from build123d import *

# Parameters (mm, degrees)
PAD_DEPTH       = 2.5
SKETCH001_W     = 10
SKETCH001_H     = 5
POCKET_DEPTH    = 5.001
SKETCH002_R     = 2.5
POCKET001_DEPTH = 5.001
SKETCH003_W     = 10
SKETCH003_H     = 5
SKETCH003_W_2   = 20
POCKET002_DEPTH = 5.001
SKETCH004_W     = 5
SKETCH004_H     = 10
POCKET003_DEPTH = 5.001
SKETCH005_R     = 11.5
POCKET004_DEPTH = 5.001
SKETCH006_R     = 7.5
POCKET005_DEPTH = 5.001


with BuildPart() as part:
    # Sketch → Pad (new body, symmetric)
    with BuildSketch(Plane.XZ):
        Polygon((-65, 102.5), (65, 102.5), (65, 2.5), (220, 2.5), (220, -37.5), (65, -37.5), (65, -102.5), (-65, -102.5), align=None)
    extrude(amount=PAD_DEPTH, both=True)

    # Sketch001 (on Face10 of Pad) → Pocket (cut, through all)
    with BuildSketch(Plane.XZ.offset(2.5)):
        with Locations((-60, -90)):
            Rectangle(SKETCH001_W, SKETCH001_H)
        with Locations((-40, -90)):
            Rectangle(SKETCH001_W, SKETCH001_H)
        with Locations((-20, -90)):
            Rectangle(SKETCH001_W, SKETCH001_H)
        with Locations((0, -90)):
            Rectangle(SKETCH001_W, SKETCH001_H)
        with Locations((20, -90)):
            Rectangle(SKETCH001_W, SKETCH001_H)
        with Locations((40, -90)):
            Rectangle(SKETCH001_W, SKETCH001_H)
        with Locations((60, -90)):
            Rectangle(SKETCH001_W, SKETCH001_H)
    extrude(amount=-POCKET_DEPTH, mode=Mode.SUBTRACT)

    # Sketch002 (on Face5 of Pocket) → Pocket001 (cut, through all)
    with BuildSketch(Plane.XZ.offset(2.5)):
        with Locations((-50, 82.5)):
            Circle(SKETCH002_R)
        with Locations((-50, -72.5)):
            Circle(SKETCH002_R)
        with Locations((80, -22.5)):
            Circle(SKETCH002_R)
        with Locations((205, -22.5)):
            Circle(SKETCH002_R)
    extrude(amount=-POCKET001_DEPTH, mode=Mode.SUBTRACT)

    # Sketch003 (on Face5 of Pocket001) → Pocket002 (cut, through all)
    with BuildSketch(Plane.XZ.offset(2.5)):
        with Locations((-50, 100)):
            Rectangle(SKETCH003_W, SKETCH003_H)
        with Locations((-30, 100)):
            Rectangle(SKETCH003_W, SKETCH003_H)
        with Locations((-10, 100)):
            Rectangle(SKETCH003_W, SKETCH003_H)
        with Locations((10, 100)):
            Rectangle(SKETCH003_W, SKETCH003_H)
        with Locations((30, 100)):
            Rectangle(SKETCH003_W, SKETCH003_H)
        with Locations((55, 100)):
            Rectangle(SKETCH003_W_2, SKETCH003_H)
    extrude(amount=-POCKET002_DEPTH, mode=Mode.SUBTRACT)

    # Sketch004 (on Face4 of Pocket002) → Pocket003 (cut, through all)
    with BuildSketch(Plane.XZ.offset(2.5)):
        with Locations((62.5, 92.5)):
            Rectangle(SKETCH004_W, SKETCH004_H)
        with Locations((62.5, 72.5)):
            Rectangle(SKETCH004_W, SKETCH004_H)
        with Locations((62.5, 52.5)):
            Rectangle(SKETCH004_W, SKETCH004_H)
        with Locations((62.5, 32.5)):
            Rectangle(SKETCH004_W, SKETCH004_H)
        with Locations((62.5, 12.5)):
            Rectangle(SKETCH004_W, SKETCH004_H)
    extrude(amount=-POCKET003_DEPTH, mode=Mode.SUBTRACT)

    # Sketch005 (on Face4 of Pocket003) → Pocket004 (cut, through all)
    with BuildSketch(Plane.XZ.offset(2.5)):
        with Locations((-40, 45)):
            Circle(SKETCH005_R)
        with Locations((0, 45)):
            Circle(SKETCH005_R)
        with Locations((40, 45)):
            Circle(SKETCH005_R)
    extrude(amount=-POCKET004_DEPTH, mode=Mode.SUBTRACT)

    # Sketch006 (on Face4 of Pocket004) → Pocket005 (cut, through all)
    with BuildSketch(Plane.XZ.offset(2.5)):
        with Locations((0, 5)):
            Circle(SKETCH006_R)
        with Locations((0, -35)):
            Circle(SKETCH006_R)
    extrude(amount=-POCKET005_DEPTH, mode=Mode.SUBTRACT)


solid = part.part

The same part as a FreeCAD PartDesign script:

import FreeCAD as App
import Part
import Sketcher


def add_polygon(sketch, points):
    """Adds a closed chain of lines whose ends are joined by coincident constraints."""
    first, n = sketch.GeometryCount, len(points)
    for a, b in zip(points, points[1:] + points[:1]):
        sketch.addGeometry(Part.LineSegment(App.Vector(*a, 0), App.Vector(*b, 0)), False)
    for i in range(n):
        sketch.addConstraint(Sketcher.Constraint("Coincident", first + i, 2, first + (i + 1) % n, 1))

doc = App.newDocument("Part")
body = doc.addObject("PartDesign::Body", "Body")

# Sketch on XZ plane
sketch1 = body.newObject("Sketcher::SketchObject", "Sketch")
sketch1.AttachmentSupport = (doc.getObject("XZ_Plane"), [""])
sketch1.MapMode = "FlatFace"
add_polygon(sketch1, [(65, 102), (-65, 102), (-65, -102), (65, -102), (65, -38), (220, -38), (220, 2), (65, 2)])  # lines 0-7
sketch1.addConstraint([
    Sketcher.Constraint("Horizontal", 0),
    Sketcher.Constraint("Vertical", 1),
    Sketcher.Constraint("Horizontal", 2),
    Sketcher.Constraint("Vertical", 3),
    Sketcher.Constraint("Horizontal", 4),
    Sketcher.Constraint("Vertical", 5),
    Sketcher.Constraint("Horizontal", 6),
    Sketcher.Constraint("Vertical", 7),
    Sketcher.Constraint("Symmetric", 0, 2, 2, 2, -1, 1),
    Sketcher.Constraint("Vertical", 3, 2, 6, 2),
    Sketcher.Constraint("DistanceX", 0, 2, 0, 1, 130.0),
    Sketcher.Constraint("DistanceX", 4, 1, 4, 2, 155.0),
    Sketcher.Constraint("DistanceY", 1, 2, 1, 1, 205.0),
    Sketcher.Constraint("DistanceY", 3, 1, 3, 2, 65.0),
    Sketcher.Constraint("DistanceY", 5, 1, 5, 2, 40.0),
])
pad1 = body.newObject("PartDesign::Pad", "Pad")
pad1.Profile = sketch1
pad1.Length = 5
pad1.Midplane = True

# Sketch on XZ plane
sketch2 = body.newObject("Sketcher::SketchObject", "Sketch001")
sketch2.AttachmentSupport = (doc.getObject("XZ_Plane"), [""])
sketch2.MapMode = "FlatFace"
sketch2.AttachmentOffset = App.Placement(App.Vector(0, 0, 2.5), App.Rotation())
add_polygon(sketch2, [(-65, -88), (-65, -92), (-55, -92), (-55, -88)])  # lines 0-3
add_polygon(sketch2, [(-45, -88), (-45, -92), (-35, -92), (-35, -88)])  # lines 4-7
add_polygon(sketch2, [(-25, -88), (-25, -92), (-15, -92), (-15, -88)])  # lines 8-11
add_polygon(sketch2, [(-5, -88), (-5, -92), (5, -92), (5, -88)])  # lines 12-15
add_polygon(sketch2, [(15, -88), (15, -92), (25, -92), (25, -88)])  # lines 16-19
add_polygon(sketch2, [(35, -88), (35, -92), (45, -92), (45, -88)])  # lines 20-23
add_polygon(sketch2, [(55, -88), (55, -92), (65, -92), (65, -88)])  # lines 24-27
sketch2.addConstraint([
    Sketcher.Constraint("Vertical", 0),
    Sketcher.Constraint("Horizontal", 1),
    Sketcher.Constraint("Vertical", 2),
    Sketcher.Constraint("Horizontal", 3),
    Sketcher.Constraint("Vertical", 4),
    Sketcher.Constraint("Horizontal", 5),
    Sketcher.Constraint("Vertical", 6),
    Sketcher.Constraint("Horizontal", 7),
    Sketcher.Constraint("Vertical", 8),
    Sketcher.Constraint("Horizontal", 9),
    Sketcher.Constraint("Vertical", 10),
    Sketcher.Constraint("Horizontal", 11),
    Sketcher.Constraint("Vertical", 12),
    Sketcher.Constraint("Horizontal", 13),
    Sketcher.Constraint("Vertical", 14),
    Sketcher.Constraint("Horizontal", 15),
    Sketcher.Constraint("Vertical", 16),
    Sketcher.Constraint("Horizontal", 17),
    Sketcher.Constraint("Vertical", 18),
    Sketcher.Constraint("Horizontal", 19),
    Sketcher.Constraint("Vertical", 20),
    Sketcher.Constraint("Horizontal", 21),
    Sketcher.Constraint("Vertical", 22),
    Sketcher.Constraint("Horizontal", 23),
    Sketcher.Constraint("Vertical", 24),
    Sketcher.Constraint("Horizontal", 25),
    Sketcher.Constraint("Vertical", 26),
    Sketcher.Constraint("Horizontal", 27),
    Sketcher.Constraint("Symmetric", 9, 2, 16, 2, -2),
    Sketcher.Constraint("Symmetric", 11, 2, 18, 2, -2),
    Sketcher.Constraint("Symmetric", 5, 2, 20, 2, -2),
    Sketcher.Constraint("Symmetric", 7, 2, 22, 2, -2),
    Sketcher.Constraint("Symmetric", 1, 2, 24, 2, -2),
    Sketcher.Constraint("Symmetric", 3, 2, 26, 2, -2),
    Sketcher.Constraint("Horizontal", 1, 2, 4, 2),
    Sketcher.Constraint("Horizontal", 3, 2, 6, 2),
    Sketcher.Constraint("Horizontal", 5, 2, 8, 2),
    Sketcher.Constraint("Horizontal", 7, 2, 10, 2),
    Sketcher.Constraint("Horizontal", 9, 2, 12, 2),
    Sketcher.Constraint("Horizontal", 11, 2, 14, 2),
    Sketcher.Constraint("Equal", 3, 5),
    Sketcher.Constraint("Equal", 7, 9),
    Sketcher.Constraint("Equal", 11, 13),
    Sketcher.Constraint("DistanceX", 1, 1, 1, 2, 10.0),
    Sketcher.Constraint("DistanceY", 0, 2, 0, 1, 5.0),
    Sketcher.Constraint("DistanceX", 0, 2, -1, 1, 65.0),
    Sketcher.Constraint("DistanceX", 4, 2, -1, 1, 45.0),
    Sketcher.Constraint("DistanceX", 8, 2, -1, 1, 25.0),
    Sketcher.Constraint("DistanceX", 12, 2, -1, 1, 5.0),
    Sketcher.Constraint("DistanceY", 0, 2, -1, 1, 92.5),
])
pocket1 = body.newObject("PartDesign::Pocket", "Pocket")
pocket1.Profile = sketch2
pocket1.Type = "ThroughAll"

# Sketch on XZ plane
sketch3 = body.newObject("Sketcher::SketchObject", "Sketch002")
sketch3.AttachmentSupport = (doc.getObject("XZ_Plane"), [""])
sketch3.MapMode = "FlatFace"
sketch3.AttachmentOffset = App.Placement(App.Vector(0, 0, 2.5), App.Rotation())
sketch3.addGeometry([
    Part.Circle(App.Vector(-50, 82.5, 0), App.Vector(0, 0, 1), 2.5),
    Part.Circle(App.Vector(-50, -72.5, 0), App.Vector(0, 0, 1), 2.5),
    Part.Circle(App.Vector(80, -22.5, 0), App.Vector(0, 0, 1), 2.5),
    Part.Circle(App.Vector(205, -22.5, 0), App.Vector(0, 0, 1), 2.5),
], False)
sketch3.addConstraint([
    Sketcher.Constraint("Equal", 0, 1),
    Sketcher.Constraint("Equal", 1, 2),
    Sketcher.Constraint("Equal", 2, 3),
    Sketcher.Constraint("Horizontal", 2, 3, 3, 3),
    Sketcher.Constraint("Vertical", 0, 3, 1, 3),
    Sketcher.Constraint("Diameter", 0, 5.0),
    Sketcher.Constraint("DistanceX", 0, 3, -1, 1, 50.0),
    Sketcher.Constraint("DistanceX", -1, 1, 2, 3, 80.0),
    Sketcher.Constraint("DistanceX", -1, 1, 3, 3, 205.0),
    Sketcher.Constraint("DistanceY", 1, 3, 0, 3, 155.0),
    Sketcher.Constraint("DistanceY", 1, 3, 2, 3, 50.0),
    Sketcher.Constraint("DistanceY", -1, 1, 0, 3, 82.5),
])
pocket2 = body.newObject("PartDesign::Pocket", "Pocket001")
pocket2.Profile = sketch3
pocket2.Type = "ThroughAll"

# Sketch on XZ plane
sketch4 = body.newObject("Sketcher::SketchObject", "Sketch003")
sketch4.AttachmentSupport = (doc.getObject("XZ_Plane"), [""])
sketch4.MapMode = "FlatFace"
sketch4.AttachmentOffset = App.Placement(App.Vector(0, 0, 2.5), App.Rotation())
add_polygon(sketch4, [(-55, 102), (-55, 98), (-45, 98), (-45, 102)])  # lines 0-3
add_polygon(sketch4, [(-35, 102), (-35, 98), (-25, 98), (-25, 102)])  # lines 4-7
add_polygon(sketch4, [(-15, 102), (-15, 98), (-5, 98), (-5, 102)])  # lines 8-11
add_polygon(sketch4, [(5, 102), (5, 98), (15, 98), (15, 102)])  # lines 12-15
add_polygon(sketch4, [(25, 102), (25, 98), (35, 98), (35, 102)])  # lines 16-19
add_polygon(sketch4, [(45, 102), (45, 98), (65, 98), (65, 102)])  # lines 20-23
sketch4.addConstraint([
    Sketcher.Constraint("Vertical", 0),
    Sketcher.Constraint("Horizontal", 1),
    Sketcher.Constraint("Vertical", 2),
    Sketcher.Constraint("Horizontal", 3),
    Sketcher.Constraint("Vertical", 4),
    Sketcher.Constraint("Horizontal", 5),
    Sketcher.Constraint("Vertical", 6),
    Sketcher.Constraint("Horizontal", 7),
    Sketcher.Constraint("Vertical", 8),
    Sketcher.Constraint("Horizontal", 9),
    Sketcher.Constraint("Vertical", 10),
    Sketcher.Constraint("Horizontal", 11),
    Sketcher.Constraint("Vertical", 12),
    Sketcher.Constraint("Horizontal", 13),
    Sketcher.Constraint("Vertical", 14),
    Sketcher.Constraint("Horizontal", 15),
    Sketcher.Constraint("Vertical", 16),
    Sketcher.Constraint("Horizontal", 17),
    Sketcher.Constraint("Vertical", 18),
    Sketcher.Constraint("Horizontal", 19),
    Sketcher.Constraint("Vertical", 20),
    Sketcher.Constraint("Horizontal", 21),
    Sketcher.Constraint("Vertical", 22),
    Sketcher.Constraint("Horizontal", 23),
    Sketcher.Constraint("Symmetric", 9, 2, 12, 2, -2),
    Sketcher.Constraint("Symmetric", 11, 2, 14, 2, -2),
    Sketcher.Constraint("Symmetric", 5, 2, 16, 2, -2),
    Sketcher.Constraint("Symmetric", 7, 2, 18, 2, -2),
    Sketcher.Constraint("Symmetric", 1, 2, 20, 2, -2),
    Sketcher.Constraint("Horizontal", 1, 2, 4, 2),
    Sketcher.Constraint("Horizontal", 3, 2, 6, 2),
    Sketcher.Constraint("Horizontal", 5, 2, 8, 2),
    Sketcher.Constraint("Horizontal", 7, 2, 10, 2),
    Sketcher.Constraint("Horizontal", 19, 2, 22, 2),
    Sketcher.Constraint("Equal", 3, 5),
    Sketcher.Constraint("Equal", 7, 9),
    Sketcher.Constraint("DistanceX", 1, 1, 1, 2, 10.0),
    Sketcher.Constraint("DistanceX", 21, 1, 21, 2, 20.0),
    Sketcher.Constraint("DistanceY", 0, 2, 0, 1, 5.0),
    Sketcher.Constraint("DistanceX", 0, 2, -1, 1, 55.0),
    Sketcher.Constraint("DistanceX", 4, 2, -1, 1, 35.0),
    Sketcher.Constraint("DistanceX", 8, 2, -1, 1, 15.0),
    Sketcher.Constraint("DistanceY", -1, 1, 0, 2, 97.5),
])
pocket3 = body.newObject("PartDesign::Pocket", "Pocket002")
pocket3.Profile = sketch4
pocket3.Type = "ThroughAll"

# Sketch on XZ plane
sketch5 = body.newObject("Sketcher::SketchObject", "Sketch004")
sketch5.AttachmentSupport = (doc.getObject("XZ_Plane"), [""])
sketch5.MapMode = "FlatFace"
sketch5.AttachmentOffset = App.Placement(App.Vector(0, 0, 2.5), App.Rotation())
add_polygon(sketch5, [(60, 98), (60, 88), (65, 88), (65, 98)])  # lines 0-3
add_polygon(sketch5, [(60, 78), (60, 68), (65, 68), (65, 78)])  # lines 4-7
add_polygon(sketch5, [(60, 58), (60, 48), (65, 48), (65, 58)])  # lines 8-11
add_polygon(sketch5, [(60, 38), (60, 28), (65, 28), (65, 38)])  # lines 12-15
add_polygon(sketch5, [(60, 18), (60, 8), (65, 8), (65, 18)])  # lines 16-19
sketch5.addConstraint([
    Sketcher.Constraint("Vertical", 0),
    Sketcher.Constraint("Horizontal", 1),
    Sketcher.Constraint("Vertical", 2),
    Sketcher.Constraint("Horizontal", 3),
    Sketcher.Constraint("Vertical", 4),
    Sketcher.Constraint("Horizontal", 5),
    Sketcher.Constraint("Vertical", 6),
    Sketcher.Constraint("Horizontal", 7),
    Sketcher.Constraint("Vertical", 8),
    Sketcher.Constraint("Horizontal", 9),
    Sketcher.Constraint("Vertical", 10),
    Sketcher.Constraint("Horizontal", 11),
    Sketcher.Constraint("Vertical", 12),
    Sketcher.Constraint("Horizontal", 13),
    Sketcher.Constraint("Vertical", 14),
    Sketcher.Constraint("Horizontal", 15),
    Sketcher.Constraint("Vertical", 16),
    Sketcher.Constraint("Horizontal", 17),
    Sketcher.Constraint("Vertical", 18),
    Sketcher.Constraint("Horizontal", 19),
    Sketcher.Constraint("Vertical", 3, 2, 4, 2),
    Sketcher.Constraint("Vertical", 2, 2, 5, 2),
    Sketcher.Constraint("Vertical", 7, 2, 8, 2),
    Sketcher.Constraint("Vertical", 6, 2, 9, 2),
    Sketcher.Constraint("Vertical", 11, 2, 12, 2),
    Sketcher.Constraint("Vertical", 10, 2, 13, 2),
    Sketcher.Constraint("Vertical", 15, 2, 16, 2),
    Sketcher.Constraint("Vertical", 14, 2, 17, 2),
    Sketcher.Constraint("Equal", 2, 4),
    Sketcher.Constraint("Equal", 6, 8),
    Sketcher.Constraint("Equal", 10, 12),
    Sketcher.Constraint("Equal", 14, 16),
    Sketcher.Constraint("DistanceX", 1, 1, 1, 2, 5.0),
    Sketcher.Constraint("DistanceY", 0, 2, 0, 1, 10.0),
    Sketcher.Constraint("DistanceX", -1, 1, 0, 2, 60.0),
    Sketcher.Constraint("DistanceY", 4, 2, 0, 2, 20.0),
    Sketcher.Constraint("DistanceY", 8, 2, 4, 2, 20.0),
    Sketcher.Constraint("DistanceY", 12, 2, 8, 2, 20.0),
    Sketcher.Constraint("DistanceY", 16, 2, 12, 2, 20.0),
    Sketcher.Constraint("DistanceY", -1, 1, 0, 2, 87.5),
])
pocket4 = body.newObject("PartDesign::Pocket", "Pocket003")
pocket4.Profile = sketch5
pocket4.Type = "ThroughAll"

# Sketch on XZ plane
sketch6 = body.newObject("Sketcher::SketchObject", "Sketch005")
sketch6.AttachmentSupport = (doc.getObject("XZ_Plane"), [""])
sketch6.MapMode = "FlatFace"
sketch6.AttachmentOffset = App.Placement(App.Vector(0, 0, 2.5), App.Rotation())
sketch6.addGeometry([
    Part.Circle(App.Vector(-40, 45, 0), App.Vector(0, 0, 1), 12),
    Part.Circle(App.Vector(0, 45, 0), App.Vector(0, 0, 1), 12),
    Part.Circle(App.Vector(40, 45, 0), App.Vector(0, 0, 1), 12),
], False)
sketch6.addConstraint([
    Sketcher.Constraint("Equal", 0, 1),
    Sketcher.Constraint("Equal", 1, 2),
    Sketcher.Constraint("Symmetric", 0, 3, 2, 3, -2),
    Sketcher.Constraint("PointOnObject", 1, 3, -2),
    Sketcher.Constraint("Horizontal", 0, 3, 1, 3),
    Sketcher.Constraint("Diameter", 0, 23.0),
    Sketcher.Constraint("DistanceX", 0, 3, -1, 1, 40.0),
    Sketcher.Constraint("DistanceY", -1, 1, 0, 3, 45.0),
])
pocket5 = body.newObject("PartDesign::Pocket", "Pocket004")
pocket5.Profile = sketch6
pocket5.Type = "ThroughAll"

# Sketch on XZ plane
sketch7 = body.newObject("Sketcher::SketchObject", "Sketch006")
sketch7.AttachmentSupport = (doc.getObject("XZ_Plane"), [""])
sketch7.MapMode = "FlatFace"
sketch7.AttachmentOffset = App.Placement(App.Vector(0, 0, 2.5), App.Rotation())
sketch7.addGeometry([
    Part.Circle(App.Vector(0, 5, 0), App.Vector(0, 0, 1), 8),
    Part.Circle(App.Vector(0, -35, 0), App.Vector(0, 0, 1), 8),
], False)
sketch7.addConstraint([
    Sketcher.Constraint("Equal", 0, 1),
    Sketcher.Constraint("PointOnObject", 0, 3, -2),
    Sketcher.Constraint("PointOnObject", 1, 3, -2),
    Sketcher.Constraint("Diameter", 0, 15.0),
    Sketcher.Constraint("DistanceY", -1, 1, 0, 3, 5.0),
    Sketcher.Constraint("DistanceY", 1, 3, -1, 1, 35.0),
])
pocket6 = body.newObject("PartDesign::Pocket", "Pocket005")
pocket6.Profile = sketch7
pocket6.Type = "ThroughAll"

doc.recompute()
